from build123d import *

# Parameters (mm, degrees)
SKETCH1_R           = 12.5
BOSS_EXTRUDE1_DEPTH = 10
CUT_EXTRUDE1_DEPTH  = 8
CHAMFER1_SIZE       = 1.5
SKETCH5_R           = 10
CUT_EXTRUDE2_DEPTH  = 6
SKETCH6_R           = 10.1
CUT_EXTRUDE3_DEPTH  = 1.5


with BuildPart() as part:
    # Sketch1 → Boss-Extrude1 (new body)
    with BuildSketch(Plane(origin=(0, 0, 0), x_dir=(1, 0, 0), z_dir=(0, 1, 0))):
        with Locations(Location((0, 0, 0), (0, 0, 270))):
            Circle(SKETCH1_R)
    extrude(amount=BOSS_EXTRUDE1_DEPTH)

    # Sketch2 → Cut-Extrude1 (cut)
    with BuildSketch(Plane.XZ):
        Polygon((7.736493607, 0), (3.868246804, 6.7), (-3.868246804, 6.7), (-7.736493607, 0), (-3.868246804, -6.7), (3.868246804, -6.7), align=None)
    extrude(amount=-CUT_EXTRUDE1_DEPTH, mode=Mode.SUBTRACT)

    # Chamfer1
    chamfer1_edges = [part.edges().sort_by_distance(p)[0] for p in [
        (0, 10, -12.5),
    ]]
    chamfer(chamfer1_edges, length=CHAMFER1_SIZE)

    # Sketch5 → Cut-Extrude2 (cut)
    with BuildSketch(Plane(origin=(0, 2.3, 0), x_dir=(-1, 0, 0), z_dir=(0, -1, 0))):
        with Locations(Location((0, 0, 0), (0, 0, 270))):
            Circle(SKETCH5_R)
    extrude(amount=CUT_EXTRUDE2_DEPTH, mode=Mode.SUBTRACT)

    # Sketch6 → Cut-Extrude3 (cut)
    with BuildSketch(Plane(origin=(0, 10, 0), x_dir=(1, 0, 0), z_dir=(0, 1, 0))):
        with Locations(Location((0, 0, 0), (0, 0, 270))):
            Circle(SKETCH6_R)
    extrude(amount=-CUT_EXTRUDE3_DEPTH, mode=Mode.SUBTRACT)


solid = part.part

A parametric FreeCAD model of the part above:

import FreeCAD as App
import Part
import Sketcher
from FreeCAD import Vector
Q = App.Units.Quantity


def edges_at(feature, points):
    """Names of the edges that pass closest to the given points."""
    edges = feature.Shape.Edges
    near = lambda p: min(range(len(edges)), key=lambda i: edges[i].distToShape(Part.Vertex(*p))[0])
    return sorted({f"Edge{near(p) + 1}" for p in points})


def add_polygon(sketch, points):
    """Adds a closed chain of lines whose ends are joined by coincident constraints."""
    first, n = sketch.GeometryCount, len(points)
    for a, b in zip(points, points[1:] + points[:1]):
        sketch.addGeometry(Part.LineSegment(App.Vector(*a, 0), App.Vector(*b, 0)), False)
    for i in range(n):
        sketch.addConstraint(Sketcher.Constraint("Coincident", first + i, 2, first + (i + 1) % n, 1))

doc = App.newDocument("Part")
params = doc.addObject("Spreadsheet::Sheet", "Params")
for row, (alias, value) in enumerate([
    ("sketch1_diameter", "25 mm"),
    ("pad1_length", "10 mm"),
    ("pocket1_length", "8 mm"),
    ("chamfer_size", "1.5 mm"),
    ("sketch3_diameter", "20 mm"),
    ("pocket2_length", "6 mm"),
    ("sketch4_diameter", "20.2 mm"),
    ("pocket3_length", "1.5 mm"),
], start=1):
    params.set(f"A{row}", alias)
    params.set(f"B{row}", "=" + value)
    params.setAlias(f"B{row}", alias)

body = doc.addObject("PartDesign::Body", "Body")

# Sketch on XZ plane
sketch1 = body.newObject("Sketcher::SketchObject", "Sketch")
sketch1.AttachmentSupport = (doc.getObject("XZ_Plane"), [""])
sketch1.MapMode = "FlatFace"
sketch1.addGeometry(Part.Circle(Vector(0, 0, 0), Vector(0, 0, 1), 12), False)
sketch1.addConstraint(Sketcher.Constraint("Coincident", 0, 3, -1, 1))
sketch1.addConstraint(Sketcher.Constraint("Diameter", 0, Q("25 mm")))
sketch1.setExpression("Constraints[1]", "Params.sketch1_diameter")
pad1 = body.newObject("PartDesign::Pad", "Pad")
pad1.Profile = sketch1
pad1.setExpression("Length", "Params.pad1_length")
pad1.Reversed = True

# Sketch on XZ plane
sketch2 = body.newObject("Sketcher::SketchObject", "Sketch001")
sketch2.AttachmentSupport = (doc.getObject("XZ_Plane"), [""])
sketch2.MapMode = "FlatFace"
add_polygon(sketch2, [(8, 0), (4, 7), (-4, 7), (-8, 0), (-4, -7), (4, -7)])  # lines 0-5
sketch2.addConstraint(Sketcher.Constraint("Horizontal", 1))
sketch2.addConstraint(Sketcher.Constraint("Horizontal", 4))
sketch2.addConstraint(Sketcher.Constraint("Symmetric", 0, 2, 3, 2, -1, 1))
sketch2.addConstraint(Sketcher.Constraint("Symmetric", 2, 2, 5, 2, -1, 1))
sketch2.addConstraint(Sketcher.Constraint("PointOnObject", 2, 2, -1))
sketch2.addConstraint(Sketcher.Constraint("Parallel", 2, 5))
sketch2.addConstraint(Sketcher.Constraint("Vertical", 1, 2, 3, 2))
sketch2.addConstraint(Sketcher.Constraint("Angle", 0, Q("120 deg")))
sketch2.addConstraint(Sketcher.Constraint("DistanceY", -1, 1, 0, 2, Q("6.7 mm")))
sketch2.addConstraint(Sketcher.Constraint("DistanceX", 1, 2, 1, 1, Q("7.736494 mm")))
pocket1 = body.newObject("PartDesign::Pocket", "Pocket")
pocket1.Profile = sketch2
pocket1.setExpression("Length", "Params.pocket1_length")
doc.recompute()

chamfer = body.newObject("PartDesign::Chamfer", "Chamfer")
chamfer.Base = (pocket1, edges_at(pocket1, [(0, 10, -12.5)]))
chamfer.setExpression("Size", "Params.chamfer_size")

# Sketch on XZ plane
sketch3 = body.newObject("Sketcher::SketchObject", "Sketch002")
sketch3.AttachmentSupport = (doc.getObject("XZ_Plane"), [""])
sketch3.MapMode = "FlatFace"
sketch3.AttachmentOffset = App.Placement(Vector(0, 0, -2.3), App.Rotation())
sketch3.addGeometry(Part.Circle(Vector(0, 0, 0), Vector(0, 0, 1), 10), False)
sketch3.addConstraint(Sketcher.Constraint("Coincident", 0, 3, -1, 1))
sketch3.addConstraint(Sketcher.Constraint("Diameter", 0, Q("20 mm")))
sketch3.setExpression("Constraints[1]", "Params.sketch3_diameter")
pocket2 = body.newObject("PartDesign::Pocket", "Pocket001")
pocket2.Profile = sketch3
pocket2.setExpression("Length", "Params.pocket2_length")
pocket2.Reversed = True

# Sketch on XZ plane
sketch4 = body.newObject("Sketcher::SketchObject", "Sketch003")
sketch4.AttachmentSupport = (doc.getObject("XZ_Plane"), [""])
sketch4.MapMode = "FlatFace"
sketch4.AttachmentOffset = App.Placement(Vector(0, 0, -10), App.Rotation())
sketch4.addGeometry(Part.Circle(Vector(0, 0, 0), Vector(0, 0, 1), 10), False)
sketch4.addConstraint(Sketcher.Constraint("Coincident", 0, 3, -1, 1))
sketch4.addConstraint(Sketcher.Constraint("Diameter", 0, Q("20.2 mm")))
sketch4.setExpression("Constraints[1]", "Params.sketch4_diameter")
pocket3 = body.newObject("PartDesign::Pocket", "Pocket002")
pocket3.Profile = sketch4
pocket3.setExpression("Length", "Params.pocket3_length")
pocket3.Reversed = True

doc.recompute()
